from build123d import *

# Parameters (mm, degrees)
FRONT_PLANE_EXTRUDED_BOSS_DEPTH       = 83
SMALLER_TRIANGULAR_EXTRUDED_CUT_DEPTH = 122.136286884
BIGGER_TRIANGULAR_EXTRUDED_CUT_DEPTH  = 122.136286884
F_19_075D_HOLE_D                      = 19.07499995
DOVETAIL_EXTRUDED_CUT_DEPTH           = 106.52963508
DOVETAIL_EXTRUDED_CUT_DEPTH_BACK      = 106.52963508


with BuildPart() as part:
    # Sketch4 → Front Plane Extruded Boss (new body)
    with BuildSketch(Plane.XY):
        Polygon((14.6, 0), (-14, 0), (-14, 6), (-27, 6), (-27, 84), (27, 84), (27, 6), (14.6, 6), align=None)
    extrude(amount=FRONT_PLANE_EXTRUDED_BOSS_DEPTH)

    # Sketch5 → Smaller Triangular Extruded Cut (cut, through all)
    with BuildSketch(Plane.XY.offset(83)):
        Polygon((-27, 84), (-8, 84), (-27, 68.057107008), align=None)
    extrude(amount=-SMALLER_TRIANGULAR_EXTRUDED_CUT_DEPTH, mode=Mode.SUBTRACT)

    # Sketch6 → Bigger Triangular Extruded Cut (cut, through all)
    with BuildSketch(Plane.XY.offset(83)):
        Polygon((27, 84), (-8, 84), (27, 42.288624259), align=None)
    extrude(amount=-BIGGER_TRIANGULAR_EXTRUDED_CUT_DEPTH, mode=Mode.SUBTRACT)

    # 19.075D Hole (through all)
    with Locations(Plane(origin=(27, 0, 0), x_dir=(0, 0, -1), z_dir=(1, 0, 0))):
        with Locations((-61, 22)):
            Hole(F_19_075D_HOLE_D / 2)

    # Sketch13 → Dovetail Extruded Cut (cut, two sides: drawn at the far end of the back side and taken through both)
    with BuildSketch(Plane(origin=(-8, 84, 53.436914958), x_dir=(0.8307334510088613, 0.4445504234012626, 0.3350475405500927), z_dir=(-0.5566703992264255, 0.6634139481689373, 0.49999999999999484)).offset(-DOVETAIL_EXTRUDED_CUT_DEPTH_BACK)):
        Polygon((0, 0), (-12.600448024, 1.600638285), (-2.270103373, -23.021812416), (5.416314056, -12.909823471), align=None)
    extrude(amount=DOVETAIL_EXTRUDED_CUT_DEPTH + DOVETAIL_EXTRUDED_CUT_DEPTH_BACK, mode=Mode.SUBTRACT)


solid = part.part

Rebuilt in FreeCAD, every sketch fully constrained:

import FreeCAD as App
import Part
import Sketcher
Q = App.Units.Quantity

doc = App.newDocument("Part")
body = doc.addObject("PartDesign::Body", "Body")

# Sketch on XY plane
sketch1 = doc.addObject("Sketcher::SketchObject", "Sketch")
body.addObject(sketch1)
sketch1.AttachmentSupport = (doc.XY_Plane, [""])
sketch1.MapMode = "FlatFace"
sketch1.addGeometry([
    Part.LineSegment(App.Vector(-14, 0, 0), App.Vector(15, 0, 0)),  # 0
    Part.LineSegment(App.Vector(15, 0, 0), App.Vector(15, 6, 0)),  # 1
    Part.LineSegment(App.Vector(15, 6, 0), App.Vector(27, 6, 0)),  # 2
    Part.LineSegment(App.Vector(27, 6, 0), App.Vector(27, 84, 0)),  # 3
    Part.LineSegment(App.Vector(27, 84, 0), App.Vector(-27, 84, 0)),  # 4
    Part.LineSegment(App.Vector(-27, 84, 0), App.Vector(-27, 6, 0)),  # 5
    Part.LineSegment(App.Vector(-27, 6, 0), App.Vector(-14, 6, 0)),  # 6
    Part.LineSegment(App.Vector(-14, 6, 0), App.Vector(-14, 0, 0)),  # 7
], False)
sketch1.addConstraint([
    Sketcher.Constraint("Coincident", 0, 2, 1, 1),
    Sketcher.Constraint("Coincident", 1, 2, 2, 1),
    Sketcher.Constraint("Coincident", 2, 2, 3, 1),
    Sketcher.Constraint("Coincident", 3, 2, 4, 1),
    Sketcher.Constraint("Coincident", 4, 2, 5, 1),
    Sketcher.Constraint("Coincident", 5, 2, 6, 1),
    Sketcher.Constraint("Coincident", 6, 2, 7, 1),
    Sketcher.Constraint("Coincident", 7, 2, 0, 1),
    Sketcher.Constraint("Horizontal", 0),
    Sketcher.Constraint("Vertical", 1),
    Sketcher.Constraint("Horizontal", 2),
    Sketcher.Constraint("Vertical", 3),
    Sketcher.Constraint("Horizontal", 4),
    Sketcher.Constraint("Vertical", 5),
    Sketcher.Constraint("Horizontal", 6),
    Sketcher.Constraint("Vertical", 7),
    Sketcher.Constraint("Symmetric", 2, 2, 5, 2, -2),
    Sketcher.Constraint("PointOnObject", 0, 2, -1),
    Sketcher.Constraint("DistanceX", 4, 2, 4, 1, 54.0),
    Sketcher.Constraint("DistanceX", 6, 1, 6, 2, 13.0),
    Sketcher.Constraint("DistanceY", 1, 1, 1, 2, 6.0),
    Sketcher.Constraint("DistanceY", 3, 1, 3, 2, 78.0),
    Sketcher.Constraint("DistanceX", 0, 1, 0, 2, 28.6),
])
pad1 = doc.addObject("PartDesign::Pad", "Pad")
body.addObject(pad1)
pad1.Profile = sketch1
pad1.Length = 83

# Sketch on XY plane
sketch2 = doc.addObject("Sketcher::SketchObject", "Sketch001")
body.addObject(sketch2)
sketch2.AttachmentSupport = (doc.XY_Plane, [""])
sketch2.MapMode = "FlatFace"
sketch2.AttachmentOffset = App.Placement(App.Vector(0, 0, 83), App.Rotation())
sketch2.addGeometry([
    Part.LineSegment(App.Vector(-8, 84, 0), App.Vector(-27, 84, 0)),
    Part.LineSegment(App.Vector(-27, 84, 0), App.Vector(-27, 68, 0)),
    Part.LineSegment(App.Vector(-27, 68, 0), App.Vector(-8, 84, 0)),
], False)
sketch2.addConstraint([
    Sketcher.Constraint("Coincident", 0, 2, 1, 1),
    Sketcher.Constraint("Coincident", 1, 2, 2, 1),
    Sketcher.Constraint("Coincident", 2, 2, 0, 1),
    Sketcher.Constraint("Horizontal", 0),
    Sketcher.Constraint("Vertical", 1),
    Sketcher.Constraint("DistanceX", 0, 2, 0, 1, 19.0),
    Sketcher.Constraint("Angle", 2, Q("40 deg")),
    Sketcher.Constraint("DistanceX", 0, 2, -1, 1, 27.0),
    Sketcher.Constraint("DistanceY", -1, 1, 0, 2, 84.0),
])
pocket1 = doc.addObject("PartDesign::Pocket", "Pocket")
body.addObject(pocket1)
pocket1.Profile = sketch2
pocket1.Type = "ThroughAll"

# Sketch on XY plane
sketch3 = doc.addObject("Sketcher::SketchObject", "Sketch002")
body.addObject(sketch3)
sketch3.AttachmentSupport = (doc.XY_Plane, [""])
sketch3.MapMode = "FlatFace"
sketch3.AttachmentOffset = App.Placement(App.Vector(0, 0, 83), App.Rotation())
sketch3.addGeometry([
    Part.LineSegment(App.Vector(27, 84, 0), App.Vector(-8, 84, 0)),
    Part.LineSegment(App.Vector(-8, 84, 0), App.Vector(27, 42, 0)),
    Part.LineSegment(App.Vector(27, 42, 0), App.Vector(27, 84, 0)),
], False)
sketch3.addConstraint([
    Sketcher.Constraint("Coincident", 0, 2, 1, 1),
    Sketcher.Constraint("Coincident", 1, 2, 2, 1),
    Sketcher.Constraint("Coincident", 2, 2, 0, 1),
    Sketcher.Constraint("Horizontal", 0),
    Sketcher.Constraint("Vertical", 2),
    Sketcher.Constraint("DistanceX", 0, 2, 0, 1, 35.0),
    Sketcher.Constraint("Angle", 1, Q("-50 deg")),
    Sketcher.Constraint("DistanceX", 0, 2, -1, 1, 8.0),
    Sketcher.Constraint("DistanceY", -1, 1, 0, 2, 84.0),
])
pocket2 = doc.addObject("PartDesign::Pocket", "Pocket001")
body.addObject(pocket2)
pocket2.Profile = sketch3
pocket2.Type = "ThroughAll"

# Sketch on YZ plane
sketch4 = doc.addObject("Sketcher::SketchObject", "Sketch003")
body.addObject(sketch4)
sketch4.AttachmentSupport = (doc.YZ_Plane, [""])
sketch4.MapMode = "FlatFace"
sketch4.AttachmentOffset = App.Placement(App.Vector(0, 0, 27), App.Rotation())
sketch4.addGeometry(Part.Circle(App.Vector(22, 61, 0), App.Vector(0, 0, 1), 10), False)
sketch4.addConstraint([
    Sketcher.Constraint("Diameter", 0, 19.075),
    Sketcher.Constraint("DistanceX", -1, 1, 0, 3, 22.0),
    Sketcher.Constraint("DistanceY", -1, 1, 0, 3, 61.0),
])
doc.recompute()
hole = doc.addObject("PartDesign::Hole", "Hole")
body.addObject(hole)
hole.Profile = sketch4
hole.ThreadType = "None"
hole.Diameter = 19.075
hole.DepthType = "ThroughAll"

# Sketch on an angled plane
sketch5 = doc.addObject("Sketcher::SketchObject", "Sketch004")
body.addObject(sketch5)
sketch5.Placement = App.Placement(App.Vector(-8, 84, 53.436915), App.Rotation(App.Vector(0.830733451, 0.444550423, 0.335047541), App.Vector(0, 0.601877774, -0.79858822), App.Vector(-0.556670399, 0.663413948, 0.5), "ZXY"))
sketch5.addGeometry([
    Part.LineSegment(App.Vector(0, 0, 0), App.Vector(-13, 2, 0)),
    Part.LineSegment(App.Vector(-13, 2, 0), App.Vector(-2, -23, 0)),
    Part.LineSegment(App.Vector(-2, -23, 0), App.Vector(5, -13, 0)),
    Part.LineSegment(App.Vector(5, -13, 0), App.Vector(0, 0, 0)),
], False)
sketch5.addConstraint([
    Sketcher.Constraint("Coincident", 0, 2, 1, 1),
    Sketcher.Constraint("Coincident", 1, 2, 2, 1),
    Sketcher.Constraint("Coincident", 2, 2, 3, 1),
    Sketcher.Constraint("Coincident", 3, 2, 0, 1),
    Sketcher.Constraint("Coincident", 3, 2, -1, 1),
    Sketcher.Constraint("Parallel", 1, 3),
    Sketcher.Constraint("Equal", 0, 2),
    Sketcher.Constraint("Distance", 3, 14.0),
    Sketcher.Constraint("DistanceX", 0, 2, -1, 1, 12.600448),
    Sketcher.Constraint("DistanceY", -1, 1, 0, 2, 1.600638),
    Sketcher.Constraint("DistanceY", 1, 2, 0, 2, 24.622451),
])
pocket3 = doc.addObject("PartDesign::Pocket", "Pocket002")
body.addObject(pocket3)
pocket3.Profile = sketch5
pocket3.Type = "ThroughAll"
pocket3.Midplane = True

doc.recompute()
